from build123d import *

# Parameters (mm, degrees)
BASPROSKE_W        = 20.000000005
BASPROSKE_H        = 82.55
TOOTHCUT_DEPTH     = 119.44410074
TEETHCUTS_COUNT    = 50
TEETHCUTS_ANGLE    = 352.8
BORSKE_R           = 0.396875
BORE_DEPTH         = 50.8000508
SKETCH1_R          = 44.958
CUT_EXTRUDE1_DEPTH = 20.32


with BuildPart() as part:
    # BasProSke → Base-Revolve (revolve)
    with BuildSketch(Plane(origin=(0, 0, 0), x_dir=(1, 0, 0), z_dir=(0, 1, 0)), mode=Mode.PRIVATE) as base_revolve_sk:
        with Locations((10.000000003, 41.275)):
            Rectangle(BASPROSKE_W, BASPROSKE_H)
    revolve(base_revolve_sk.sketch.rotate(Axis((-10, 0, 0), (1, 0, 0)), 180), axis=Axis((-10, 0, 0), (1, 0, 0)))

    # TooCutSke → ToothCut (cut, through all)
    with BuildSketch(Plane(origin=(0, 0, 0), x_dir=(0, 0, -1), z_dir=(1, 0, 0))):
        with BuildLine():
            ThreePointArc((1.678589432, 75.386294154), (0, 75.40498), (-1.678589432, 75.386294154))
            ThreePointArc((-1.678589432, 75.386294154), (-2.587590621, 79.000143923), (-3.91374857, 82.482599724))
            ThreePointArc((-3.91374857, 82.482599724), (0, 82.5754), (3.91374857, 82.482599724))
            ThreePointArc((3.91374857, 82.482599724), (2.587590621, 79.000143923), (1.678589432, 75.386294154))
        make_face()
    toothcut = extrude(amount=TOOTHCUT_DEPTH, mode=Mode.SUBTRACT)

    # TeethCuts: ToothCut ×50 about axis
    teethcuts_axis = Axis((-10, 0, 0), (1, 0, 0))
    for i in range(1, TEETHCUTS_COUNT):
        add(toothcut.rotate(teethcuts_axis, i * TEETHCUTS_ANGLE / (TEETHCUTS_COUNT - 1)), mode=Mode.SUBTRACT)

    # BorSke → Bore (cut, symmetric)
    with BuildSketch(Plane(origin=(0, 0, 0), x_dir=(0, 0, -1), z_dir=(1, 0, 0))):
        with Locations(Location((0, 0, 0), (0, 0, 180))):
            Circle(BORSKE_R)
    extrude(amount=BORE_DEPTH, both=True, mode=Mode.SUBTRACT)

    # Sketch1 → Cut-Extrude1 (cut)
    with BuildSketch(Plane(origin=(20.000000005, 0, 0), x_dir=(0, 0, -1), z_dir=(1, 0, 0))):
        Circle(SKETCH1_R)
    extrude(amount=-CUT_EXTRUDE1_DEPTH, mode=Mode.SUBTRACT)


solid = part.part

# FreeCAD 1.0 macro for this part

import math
import FreeCAD as App
import Part
import Sketcher

V = App.Vector
Q = App.Units.Quantity


def add_polygon(sketch, points):
    """Adds a closed chain of lines whose ends are joined by coincident constraints."""
    first, n = sketch.GeometryCount, len(points)
    for a, b in zip(points, points[1:] + points[:1]):
        sketch.addGeometry(Part.LineSegment(App.Vector(*a, 0), App.Vector(*b, 0)), False)
    for i in range(n):
        sketch.addConstraint(Sketcher.Constraint("Coincident", first + i, 2, first + (i + 1) % n, 1))

doc = App.newDocument("Part")
params = doc.addObject("Spreadsheet::Sheet", "Params")
for row, (alias, value) in enumerate([
    ("sketch1_height", "3.25 in"),
    ("revolution_angle", "360 deg"),
    ("sketch2_radius", "1.25 in"),
    ("sketch2_radius2", "3.251 in"),
    ("sketch3_diameter", "0.03125 in"),
    ("pocket2_length", "101.600102 mm"),
    ("sketch4_diameter", "3.54 in"),
    ("pocket3_length", "0.8 in"),
], start=1):
    params.set(f"A{row}", alias)
    params.set(f"B{row}", "=" + value)
    params.setAlias(f"B{row}", alias)

body = doc.addObject("PartDesign::Body", "Body")

# Sketch on XZ plane
sketch1 = body.newObject("Sketcher::SketchObject", "Sketch")
sketch1.AttachmentSupport = (doc.getObject("XZ_Plane"), [""])
sketch1.MapMode = "FlatFace"
add_polygon(sketch1, [(0, -83), (0, 0), (20, 0), (20, -83)])  # lines 0-3
sketch1.addConstraint(Sketcher.Constraint("Vertical", 0))
sketch1.addConstraint(Sketcher.Constraint("Horizontal", 1))
sketch1.addConstraint(Sketcher.Constraint("Vertical", 2))
sketch1.addConstraint(Sketcher.Constraint("Horizontal", 3))
sketch1.addConstraint(Sketcher.Constraint("Coincident", 0, 2, -1, 1))
sketch1.addConstraint(Sketcher.Constraint("DistanceY", 0, 1, 0, 2, Q("3.25 in")))
sketch1.addConstraint(Sketcher.Constraint("DistanceX", 1, 1, 1, 2, 20.0))
sketch1.setExpression("Constraints[9]", "Params.sketch1_height")
revolution = body.newObject("PartDesign::Revolution", "Revolution")
revolution.Profile = sketch1
revolution.ReferenceAxis = (sketch1, ["H_Axis"])
revolution.setExpression("Angle", "Params.revolution_angle")

# Sketch on YZ plane
sketch2 = body.newObject("Sketcher::SketchObject", "Sketch001")
sketch2.AttachmentSupport = (doc.getObject("YZ_Plane"), [""])
sketch2.MapMode = "FlatFace"
sketch2.addGeometry(Part.ArcOfCircle(Part.Circle(V(0.000001, 0, 0), V(0, 0, 1), 75.404979), math.radians(-1.275566), math.radians(1.275566)), False)
sketch2.addGeometry(Part.ArcOfCircle(Part.Circle(V(69.461653, -32.870914, 0), V(0, 0, 1), 31.75), math.radians(65.788345), math.radians(79.245402)), False)
sketch2.addGeometry(Part.ArcOfCircle(Part.Circle(V(0, 0, 0), V(0, 0, 1), 82.5754), math.radians(-2.716612), math.radians(2.716612)), False)
sketch2.addGeometry(Part.ArcOfCircle(Part.Circle(V(69.461653, 32.870914, 0), V(0, 0, 1), 31.75), math.radians(-79.245402), math.radians(-65.788345)), False)
sketch2.addConstraint(Sketcher.Constraint("Coincident", 0, 1, 1, 2))
sketch2.addConstraint(Sketcher.Constraint("Coincident", 1, 1, 2, 1))
sketch2.addConstraint(Sketcher.Constraint("Coincident", 2, 2, 3, 2))
sketch2.addConstraint(Sketcher.Constraint("Coincident", 3, 1, 0, 2))
sketch2.addConstraint(Sketcher.Constraint("Coincident", 0, 3, -1, 1))
sketch2.addConstraint(Sketcher.Constraint("Coincident", 2, 3, -1, 1))
sketch2.addConstraint(Sketcher.Constraint("Equal", 1, 3))
sketch2.addConstraint(Sketcher.Constraint("Symmetric", 1, 3, 3, 3, -1))
sketch2.addConstraint(Sketcher.Constraint("Radius", 1, Q("1.25 in")))
sketch2.addConstraint(Sketcher.Constraint("Radius", 2, Q("3.251 in")))
sketch2.addConstraint(Sketcher.Constraint("Radius", 0, Q("2.9687 in")))
sketch2.addConstraint(Sketcher.Constraint("DistanceX", -1, 1, 2, 2, 82.4826))
sketch2.addConstraint(Sketcher.Constraint("DistanceY", 0, 1, -1, 1, 1.678589))
sketch2.setExpression("Constraints[8]", "Params.sketch2_radius")
sketch2.setExpression("Constraints[9]", "Params.sketch2_radius2")
pocket1 = body.newObject("PartDesign::Pocket", "Pocket")
pocket1.Profile = sketch2
pocket1.Type = "ThroughAll"
pocket1.Reversed = True
doc.recompute()

polarpattern = body.newObject("PartDesign::PolarPattern", "PolarPattern")
polarpattern.Originals = [pocket1]
polarpattern.Axis = (doc.getObject("X_Axis"), [""])
polarpattern.Angle = 360
polarpattern.Occurrences = 50
body.Tip = polarpattern

# Sketch on YZ plane
sketch3 = body.newObject("Sketcher::SketchObject", "Sketch002")
sketch3.AttachmentSupport = (doc.getObject("YZ_Plane"), [""])
sketch3.MapMode = "FlatFace"
sketch3.addGeometry(Part.Circle(V(0, 0, 0), V(0, 0, 1), 0.4), False)
sketch3.addConstraint(Sketcher.Constraint("Coincident", 0, 3, -1, 1))
sketch3.addConstraint(Sketcher.Constraint("Diameter", 0, Q("0.03125 in")))
sketch3.setExpression("Constraints[1]", "Params.sketch3_diameter")
pocket2 = body.newObject("PartDesign::Pocket", "Pocket001")
pocket2.Profile = sketch3
pocket2.setExpression("Length", "Params.pocket2_length")
pocket2.Midplane = True

# Sketch on YZ plane
sketch4 = body.newObject("Sketcher::SketchObject", "Sketch003")
sketch4.AttachmentSupport = (doc.getObject("YZ_Plane"), [""])
sketch4.MapMode = "FlatFace"
sketch4.AttachmentOffset = App.Placement(V(0, 0, 20), App.Rotation())
sketch4.addGeometry(Part.Circle(V(0, 0, 0), V(0, 0, 1), 45), False)
sketch4.addConstraint(Sketcher.Constraint("Coincident", 0, 3, -1, 1))
sketch4.addConstraint(Sketcher.Constraint("Diameter", 0, Q("3.54 in")))
sketch4.setExpression("Constraints[1]", "Params.sketch4_diameter")
pocket3 = body.newObject("PartDesign::Pocket", "Pocket002")
pocket3.Profile = sketch4
pocket3.setExpression("Length", "Params.pocket3_length")

doc.recompute()
